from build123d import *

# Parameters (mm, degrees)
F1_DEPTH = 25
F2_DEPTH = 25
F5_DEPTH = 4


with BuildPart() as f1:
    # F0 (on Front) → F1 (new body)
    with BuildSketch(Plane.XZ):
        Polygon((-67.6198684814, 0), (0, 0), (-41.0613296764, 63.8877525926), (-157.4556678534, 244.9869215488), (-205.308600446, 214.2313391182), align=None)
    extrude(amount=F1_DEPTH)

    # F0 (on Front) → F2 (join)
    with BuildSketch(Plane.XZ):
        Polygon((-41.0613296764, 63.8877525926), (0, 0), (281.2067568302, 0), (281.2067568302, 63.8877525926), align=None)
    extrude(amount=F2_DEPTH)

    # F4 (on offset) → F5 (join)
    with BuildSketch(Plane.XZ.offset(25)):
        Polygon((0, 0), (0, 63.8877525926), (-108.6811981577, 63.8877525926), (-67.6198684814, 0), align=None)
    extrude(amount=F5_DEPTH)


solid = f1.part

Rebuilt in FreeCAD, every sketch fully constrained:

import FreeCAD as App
import Part
import Sketcher
from FreeCAD import Vector


def add_polygon(sketch, points):
    """Adds a closed chain of lines whose ends are joined by coincident constraints."""
    first, n = sketch.GeometryCount, len(points)
    for a, b in zip(points, points[1:] + points[:1]):
        sketch.addGeometry(Part.LineSegment(App.Vector(*a, 0), App.Vector(*b, 0)), False)
    for i in range(n):
        sketch.addConstraint(Sketcher.Constraint("Coincident", first + i, 2, first + (i + 1) % n, 1))

doc = App.newDocument("Part")
params = doc.addObject("Spreadsheet::Sheet", "Params")
for row, (alias, value) in enumerate([
    ("pad1_length", "25 mm"),
    ("pad2_length", "25 mm"),
    ("pad3_length", "4 mm"),
], start=1):
    params.set(f"A{row}", alias)
    params.set(f"B{row}", "=" + value)
    params.setAlias(f"B{row}", alias)

body = doc.addObject("PartDesign::Body", "Body")

sketch1 = body.newObject("Sketcher::SketchObject", "Sketch")
sketch1.AttachmentSupport = (doc.getObject("XZ_Plane"), [""])
sketch1.MapMode = "FlatFace"
add_polygon(sketch1, [(-68, 0), (0, 0), (-157, 245), (-205, 214)])
sketch1.addConstraint(Sketcher.Constraint("Horizontal", 0))
sketch1.addConstraint(Sketcher.Constraint("Coincident", 0, 2, -1, 1))
sketch1.addConstraint(Sketcher.Constraint("Perpendicular", 1, 2))
sketch1.addConstraint(Sketcher.Constraint("Perpendicular", 2, 3))
sketch1.addConstraint(Sketcher.Constraint("DistanceX", 0, 1, 0, 2, 67.619868))
sketch1.addConstraint(Sketcher.Constraint("DistanceX", 2, 2, -1, 1, 205.3086))
sketch1.addConstraint(Sketcher.Constraint("DistanceX", 1, 2, 3, 2, 89.835799))
pad1 = body.newObject("PartDesign::Pad", "Pad")
pad1.Profile = sketch1
pad1.setExpression("Length", "Params.pad1_length")

sketch2 = body.newObject("Sketcher::SketchObject", "Sketch001")
sketch2.AttachmentSupport = (doc.getObject("XZ_Plane"), [""])
sketch2.MapMode = "FlatFace"
add_polygon(sketch2, [(-41, 64), (0, 0), (281, 0), (281, 64)])
sketch2.addConstraint(Sketcher.Constraint("Horizontal", 1))
sketch2.addConstraint(Sketcher.Constraint("Vertical", 2))
sketch2.addConstraint(Sketcher.Constraint("Horizontal", 3))
sketch2.addConstraint(Sketcher.Constraint("Coincident", 0, 2, -1, 1))
sketch2.addConstraint(Sketcher.Constraint("Distance", 0, 75.945228))
sketch2.addConstraint(Sketcher.Constraint("DistanceX", 1, 1, 1, 2, 281.206757))
sketch2.addConstraint(Sketcher.Constraint("DistanceX", 3, 2, 3, 1, 322.268087))
pad2 = body.newObject("PartDesign::Pad", "Pad001")
pad2.Profile = sketch2
pad2.setExpression("Length", "Params.pad2_length")

sketch3 = body.newObject("Sketcher::SketchObject", "Sketch002")
sketch3.AttachmentSupport = (doc.getObject("XZ_Plane"), [""])
sketch3.MapMode = "FlatFace"
sketch3.AttachmentOffset = App.Placement(Vector(0, 0, 25), App.Rotation())
add_polygon(sketch3, [(0, 0), (0, 64), (-109, 64), (-68, 0)])
sketch3.addConstraint(Sketcher.Constraint("Vertical", 0))
sketch3.addConstraint(Sketcher.Constraint("Horizontal", 1))
sketch3.addConstraint(Sketcher.Constraint("Horizontal", 3))
sketch3.addConstraint(Sketcher.Constraint("Coincident", 3, 2, -1, 1))
sketch3.addConstraint(Sketcher.Constraint("DistanceX", 1, 2, 1, 1, 108.681198))
sketch3.addConstraint(Sketcher.Constraint("DistanceX", 3, 1, 3, 2, 67.619868))
sketch3.addConstraint(Sketcher.Constraint("Distance", 2, 75.945228))
pad3 = body.newObject("PartDesign::Pad", "Pad002")
pad3.Profile = sketch3
pad3.setExpression("Length", "Params.pad3_length")

doc.recompute()
